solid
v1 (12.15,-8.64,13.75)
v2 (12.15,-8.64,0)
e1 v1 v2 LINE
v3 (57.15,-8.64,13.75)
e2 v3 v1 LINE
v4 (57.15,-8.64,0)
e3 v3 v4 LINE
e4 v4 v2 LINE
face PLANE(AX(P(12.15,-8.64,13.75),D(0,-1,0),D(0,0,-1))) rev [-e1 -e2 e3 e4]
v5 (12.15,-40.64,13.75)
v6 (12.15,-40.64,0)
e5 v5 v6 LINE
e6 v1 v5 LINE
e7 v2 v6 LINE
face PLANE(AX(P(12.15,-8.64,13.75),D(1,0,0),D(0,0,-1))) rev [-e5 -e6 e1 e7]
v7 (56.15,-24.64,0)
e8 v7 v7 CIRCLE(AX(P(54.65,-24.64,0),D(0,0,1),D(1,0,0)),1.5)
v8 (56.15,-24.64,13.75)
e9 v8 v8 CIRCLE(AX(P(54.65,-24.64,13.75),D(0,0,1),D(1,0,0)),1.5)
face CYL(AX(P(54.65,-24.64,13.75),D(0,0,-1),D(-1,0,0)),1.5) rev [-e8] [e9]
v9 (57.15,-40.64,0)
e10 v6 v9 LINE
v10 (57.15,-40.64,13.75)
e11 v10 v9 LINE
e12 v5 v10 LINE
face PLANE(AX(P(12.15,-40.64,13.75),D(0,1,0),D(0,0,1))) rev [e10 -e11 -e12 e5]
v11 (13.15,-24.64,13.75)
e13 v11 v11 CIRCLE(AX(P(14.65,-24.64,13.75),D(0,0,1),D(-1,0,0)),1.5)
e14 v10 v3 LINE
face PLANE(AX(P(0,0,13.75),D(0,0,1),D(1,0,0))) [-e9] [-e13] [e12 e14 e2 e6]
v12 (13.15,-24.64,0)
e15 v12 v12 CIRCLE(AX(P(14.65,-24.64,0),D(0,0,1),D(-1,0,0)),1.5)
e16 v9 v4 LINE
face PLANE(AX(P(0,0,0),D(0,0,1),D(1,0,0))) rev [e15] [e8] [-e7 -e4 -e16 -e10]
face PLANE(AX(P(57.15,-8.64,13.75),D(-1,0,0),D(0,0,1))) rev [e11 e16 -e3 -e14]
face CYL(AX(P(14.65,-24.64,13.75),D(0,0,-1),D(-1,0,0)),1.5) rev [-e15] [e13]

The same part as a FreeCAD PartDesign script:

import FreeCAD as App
import Part
import Sketcher

V = App.Vector
Q = App.Units.Quantity


def add_polygon(sketch, points):
    """Adds a closed chain of lines whose ends are joined by coincident constraints."""
    first, n = sketch.GeometryCount, len(points)
    for a, b in zip(points, points[1:] + points[:1]):
        sketch.addGeometry(Part.LineSegment(App.Vector(*a, 0), App.Vector(*b, 0)), False)
    for i in range(n):
        sketch.addConstraint(Sketcher.Constraint("Coincident", first + i, 2, first + (i + 1) % n, 1))

doc = App.newDocument("Part")
body = doc.addObject("PartDesign::Body", "Body")

sketch1 = doc.addObject("Sketcher::SketchObject", "Sketch")
body.addObject(sketch1)
sketch1.AttachmentSupport = (doc.XY_Plane, [""])
sketch1.MapMode = "FlatFace"
add_polygon(sketch1, [(12.2, -8.6), (12.2, -40.6), (57.1, -40.6), (57.1, -8.6)])
sketch1.addGeometry(Part.Circle(V(14.7, -24.6, 0), V(0, 0, 1), 1.5), False)
sketch1.addGeometry(Part.Circle(V(54.6, -24.6, 0), V(0, 0, 1), 1.5), False)
sketch1.addConstraint([
    Sketcher.Constraint("Vertical", 0),
    Sketcher.Constraint("Horizontal", 1),
    Sketcher.Constraint("Vertical", 2),
    Sketcher.Constraint("Horizontal", 3),
    Sketcher.Constraint("Equal", 4, 5),
    Sketcher.Constraint("Horizontal", 4, 3, 5, 3),
    Sketcher.Constraint("Diameter", 4, Q("3 mm")),
    Sketcher.Constraint("DistanceX", 1, 1, 1, 2, Q("45 mm")),
    Sketcher.Constraint("DistanceY", 0, 2, 0, 1, Q("32 mm")),
    Sketcher.Constraint("DistanceX", 4, 3, 5, 3, Q("40 mm")),
    Sketcher.Constraint("DistanceY", 0, 2, 4, 3, Q("16 mm")),
    Sketcher.Constraint("DistanceX", 0, 2, 4, 3, Q("2.5 mm")),
    Sketcher.Constraint("DistanceX", -1, 1, 4, 3, Q("14.65 mm")),
    Sketcher.Constraint("DistanceY", 4, 3, -1, 1, Q("24.64 mm")),
])
pad1 = doc.addObject("PartDesign::Pad", "Pad")
body.addObject(pad1)
pad1.Profile = sketch1
pad1.Length = 13.75

doc.recompute()
